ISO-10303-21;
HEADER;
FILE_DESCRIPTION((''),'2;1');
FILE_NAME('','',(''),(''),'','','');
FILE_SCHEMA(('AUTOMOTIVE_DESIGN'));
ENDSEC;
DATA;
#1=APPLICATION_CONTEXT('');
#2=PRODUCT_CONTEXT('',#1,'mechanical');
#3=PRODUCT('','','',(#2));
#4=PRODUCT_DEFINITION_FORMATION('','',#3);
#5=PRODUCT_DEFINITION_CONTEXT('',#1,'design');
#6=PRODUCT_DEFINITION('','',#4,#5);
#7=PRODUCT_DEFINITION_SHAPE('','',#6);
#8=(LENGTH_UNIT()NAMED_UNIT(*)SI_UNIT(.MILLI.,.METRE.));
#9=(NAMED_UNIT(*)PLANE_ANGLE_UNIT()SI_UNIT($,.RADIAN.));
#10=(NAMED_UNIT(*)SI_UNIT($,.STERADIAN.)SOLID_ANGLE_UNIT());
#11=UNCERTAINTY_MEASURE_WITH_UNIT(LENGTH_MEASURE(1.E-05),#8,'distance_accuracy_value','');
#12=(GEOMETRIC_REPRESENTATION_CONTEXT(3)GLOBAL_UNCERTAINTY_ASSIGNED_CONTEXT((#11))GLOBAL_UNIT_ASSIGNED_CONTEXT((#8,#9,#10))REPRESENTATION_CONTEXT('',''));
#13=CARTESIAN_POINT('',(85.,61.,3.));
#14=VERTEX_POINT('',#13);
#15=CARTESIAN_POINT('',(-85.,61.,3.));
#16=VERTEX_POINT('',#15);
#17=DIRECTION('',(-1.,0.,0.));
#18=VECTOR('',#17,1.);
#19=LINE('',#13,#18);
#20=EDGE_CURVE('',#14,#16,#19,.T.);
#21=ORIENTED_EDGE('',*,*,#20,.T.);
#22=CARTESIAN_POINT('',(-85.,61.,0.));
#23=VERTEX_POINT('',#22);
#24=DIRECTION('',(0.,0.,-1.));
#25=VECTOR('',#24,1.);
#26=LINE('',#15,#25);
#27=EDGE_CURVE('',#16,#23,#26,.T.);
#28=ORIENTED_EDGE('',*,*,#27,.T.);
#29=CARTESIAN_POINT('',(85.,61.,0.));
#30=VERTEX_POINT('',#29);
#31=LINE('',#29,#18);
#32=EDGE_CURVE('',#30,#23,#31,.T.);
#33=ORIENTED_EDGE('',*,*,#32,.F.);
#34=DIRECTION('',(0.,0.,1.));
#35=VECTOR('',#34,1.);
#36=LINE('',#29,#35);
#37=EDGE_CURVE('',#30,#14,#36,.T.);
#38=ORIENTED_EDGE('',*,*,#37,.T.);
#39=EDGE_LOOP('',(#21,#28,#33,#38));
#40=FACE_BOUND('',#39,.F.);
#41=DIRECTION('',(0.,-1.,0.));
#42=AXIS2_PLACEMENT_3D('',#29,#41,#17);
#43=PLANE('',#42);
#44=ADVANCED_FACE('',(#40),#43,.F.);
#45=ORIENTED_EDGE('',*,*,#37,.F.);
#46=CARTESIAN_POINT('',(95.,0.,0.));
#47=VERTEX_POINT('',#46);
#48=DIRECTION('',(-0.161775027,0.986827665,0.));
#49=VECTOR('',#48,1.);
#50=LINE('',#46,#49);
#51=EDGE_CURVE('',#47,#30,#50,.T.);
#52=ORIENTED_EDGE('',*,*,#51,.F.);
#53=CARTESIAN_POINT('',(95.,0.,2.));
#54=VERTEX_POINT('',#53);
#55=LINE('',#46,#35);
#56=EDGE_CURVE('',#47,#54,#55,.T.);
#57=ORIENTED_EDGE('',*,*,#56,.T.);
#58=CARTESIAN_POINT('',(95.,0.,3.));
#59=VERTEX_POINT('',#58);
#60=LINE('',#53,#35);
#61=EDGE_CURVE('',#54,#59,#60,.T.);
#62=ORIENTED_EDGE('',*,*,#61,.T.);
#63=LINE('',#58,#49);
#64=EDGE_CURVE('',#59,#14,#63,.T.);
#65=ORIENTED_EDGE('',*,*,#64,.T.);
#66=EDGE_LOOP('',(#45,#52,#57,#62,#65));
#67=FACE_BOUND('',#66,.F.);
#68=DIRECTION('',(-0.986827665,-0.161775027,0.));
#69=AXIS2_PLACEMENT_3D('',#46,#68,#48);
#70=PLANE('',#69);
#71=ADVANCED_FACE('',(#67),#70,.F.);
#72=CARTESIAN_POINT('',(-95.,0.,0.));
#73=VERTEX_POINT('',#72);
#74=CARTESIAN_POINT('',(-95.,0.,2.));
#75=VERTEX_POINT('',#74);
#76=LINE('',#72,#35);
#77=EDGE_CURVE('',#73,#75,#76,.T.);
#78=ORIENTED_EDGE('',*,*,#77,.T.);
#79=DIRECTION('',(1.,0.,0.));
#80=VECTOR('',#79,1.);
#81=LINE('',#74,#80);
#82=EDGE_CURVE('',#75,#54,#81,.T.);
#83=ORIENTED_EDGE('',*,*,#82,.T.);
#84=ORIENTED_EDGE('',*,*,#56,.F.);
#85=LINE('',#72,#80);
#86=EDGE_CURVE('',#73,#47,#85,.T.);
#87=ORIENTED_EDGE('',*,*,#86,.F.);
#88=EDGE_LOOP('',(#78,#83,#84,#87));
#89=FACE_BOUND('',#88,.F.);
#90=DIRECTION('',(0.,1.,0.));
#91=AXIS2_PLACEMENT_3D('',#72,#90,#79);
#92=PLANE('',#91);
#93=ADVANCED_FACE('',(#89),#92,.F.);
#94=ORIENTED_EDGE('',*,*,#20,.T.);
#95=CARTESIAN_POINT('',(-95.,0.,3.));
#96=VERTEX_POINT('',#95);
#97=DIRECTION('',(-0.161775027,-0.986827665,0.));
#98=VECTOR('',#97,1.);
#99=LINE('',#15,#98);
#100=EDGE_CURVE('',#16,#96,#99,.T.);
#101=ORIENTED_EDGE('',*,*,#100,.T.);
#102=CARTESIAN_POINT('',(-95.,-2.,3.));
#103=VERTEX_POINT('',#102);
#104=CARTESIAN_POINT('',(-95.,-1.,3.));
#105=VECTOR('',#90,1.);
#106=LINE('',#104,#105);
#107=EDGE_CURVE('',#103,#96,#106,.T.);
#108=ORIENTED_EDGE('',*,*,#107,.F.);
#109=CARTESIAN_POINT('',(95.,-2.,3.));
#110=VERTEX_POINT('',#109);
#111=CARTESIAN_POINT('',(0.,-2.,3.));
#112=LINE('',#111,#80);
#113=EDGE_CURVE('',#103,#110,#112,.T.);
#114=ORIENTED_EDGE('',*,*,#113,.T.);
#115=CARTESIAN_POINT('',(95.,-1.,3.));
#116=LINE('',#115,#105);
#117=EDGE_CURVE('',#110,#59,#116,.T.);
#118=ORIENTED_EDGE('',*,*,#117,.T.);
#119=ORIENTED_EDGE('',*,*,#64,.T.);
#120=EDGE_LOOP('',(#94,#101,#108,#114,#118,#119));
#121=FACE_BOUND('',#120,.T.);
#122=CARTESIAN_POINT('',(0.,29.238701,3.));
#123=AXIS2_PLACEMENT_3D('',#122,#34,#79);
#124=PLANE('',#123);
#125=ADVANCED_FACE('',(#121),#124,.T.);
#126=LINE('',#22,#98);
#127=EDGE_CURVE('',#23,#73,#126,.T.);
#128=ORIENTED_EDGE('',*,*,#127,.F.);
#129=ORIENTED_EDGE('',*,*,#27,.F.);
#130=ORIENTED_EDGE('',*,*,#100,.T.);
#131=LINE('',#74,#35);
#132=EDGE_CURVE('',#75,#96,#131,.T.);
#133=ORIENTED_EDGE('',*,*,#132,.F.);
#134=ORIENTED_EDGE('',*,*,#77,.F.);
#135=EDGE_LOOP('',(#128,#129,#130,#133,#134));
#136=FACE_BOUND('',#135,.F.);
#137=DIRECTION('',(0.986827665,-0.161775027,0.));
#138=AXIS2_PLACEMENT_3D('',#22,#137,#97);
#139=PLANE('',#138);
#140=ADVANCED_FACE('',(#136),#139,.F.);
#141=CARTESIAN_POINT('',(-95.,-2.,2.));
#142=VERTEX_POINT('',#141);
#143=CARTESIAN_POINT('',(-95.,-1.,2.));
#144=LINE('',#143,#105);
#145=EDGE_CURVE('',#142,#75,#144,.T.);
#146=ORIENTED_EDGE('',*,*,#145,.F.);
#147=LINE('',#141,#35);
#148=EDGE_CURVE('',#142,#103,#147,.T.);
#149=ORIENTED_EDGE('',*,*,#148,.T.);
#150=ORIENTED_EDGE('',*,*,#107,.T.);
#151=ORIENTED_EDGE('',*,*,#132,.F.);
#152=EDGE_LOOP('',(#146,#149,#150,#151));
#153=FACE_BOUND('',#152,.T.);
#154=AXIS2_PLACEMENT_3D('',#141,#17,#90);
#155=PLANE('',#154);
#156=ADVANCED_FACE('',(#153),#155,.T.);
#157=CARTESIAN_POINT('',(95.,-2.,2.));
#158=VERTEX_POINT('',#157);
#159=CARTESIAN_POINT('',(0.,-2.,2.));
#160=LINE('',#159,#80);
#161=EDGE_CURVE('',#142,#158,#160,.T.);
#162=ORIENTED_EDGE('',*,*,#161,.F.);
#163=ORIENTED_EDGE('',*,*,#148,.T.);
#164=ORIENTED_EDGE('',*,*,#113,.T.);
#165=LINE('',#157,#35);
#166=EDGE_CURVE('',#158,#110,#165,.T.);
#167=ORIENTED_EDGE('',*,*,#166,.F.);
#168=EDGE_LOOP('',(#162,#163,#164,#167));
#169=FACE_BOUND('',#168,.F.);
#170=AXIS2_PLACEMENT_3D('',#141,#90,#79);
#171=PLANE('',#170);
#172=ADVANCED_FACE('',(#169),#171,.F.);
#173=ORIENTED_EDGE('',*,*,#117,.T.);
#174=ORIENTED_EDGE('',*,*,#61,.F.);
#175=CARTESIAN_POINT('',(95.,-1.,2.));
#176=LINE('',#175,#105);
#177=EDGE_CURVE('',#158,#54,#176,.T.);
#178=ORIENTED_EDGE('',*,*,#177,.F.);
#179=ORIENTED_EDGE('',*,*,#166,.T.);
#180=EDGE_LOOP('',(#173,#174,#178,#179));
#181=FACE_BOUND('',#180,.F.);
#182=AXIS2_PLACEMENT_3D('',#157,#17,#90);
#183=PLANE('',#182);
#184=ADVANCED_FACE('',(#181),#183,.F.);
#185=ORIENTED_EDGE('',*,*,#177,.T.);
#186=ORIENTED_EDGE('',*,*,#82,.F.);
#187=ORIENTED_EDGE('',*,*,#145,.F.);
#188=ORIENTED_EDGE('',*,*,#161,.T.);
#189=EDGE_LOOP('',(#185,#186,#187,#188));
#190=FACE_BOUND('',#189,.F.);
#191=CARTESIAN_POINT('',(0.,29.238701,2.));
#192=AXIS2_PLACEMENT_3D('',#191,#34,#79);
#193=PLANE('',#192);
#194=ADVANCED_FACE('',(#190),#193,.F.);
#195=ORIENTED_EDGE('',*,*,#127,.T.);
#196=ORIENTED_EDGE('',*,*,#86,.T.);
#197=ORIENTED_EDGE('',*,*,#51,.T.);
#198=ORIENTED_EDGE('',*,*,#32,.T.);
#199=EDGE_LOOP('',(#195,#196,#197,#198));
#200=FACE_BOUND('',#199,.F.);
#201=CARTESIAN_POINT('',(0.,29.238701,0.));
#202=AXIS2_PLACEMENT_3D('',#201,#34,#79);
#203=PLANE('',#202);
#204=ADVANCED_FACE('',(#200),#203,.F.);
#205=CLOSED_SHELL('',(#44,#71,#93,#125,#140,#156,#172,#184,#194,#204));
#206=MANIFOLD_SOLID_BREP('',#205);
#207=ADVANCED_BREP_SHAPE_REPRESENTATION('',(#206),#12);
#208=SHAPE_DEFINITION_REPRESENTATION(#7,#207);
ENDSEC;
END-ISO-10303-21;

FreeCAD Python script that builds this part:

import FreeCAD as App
import Part
import Sketcher
from FreeCAD import Vector

doc = App.newDocument("Part")
params = doc.addObject("Spreadsheet::Sheet", "Params")
for row, (alias, value) in enumerate([
    ("sketch1_width", "190 mm"),
    ("sketch1_width2", "170 mm"),
    ("pad1_length", "1 mm"),
    ("sketch2_width", "190 mm"),
    ("sketch2_width2", "170 mm"),
    ("pad2_length", "2 mm"),
    ("sketch3_width", "190 mm"),
    ("sketch3_height", "2 mm"),
    ("pad3_length", "1 mm"),
], start=1):
    params.set(f"A{row}", alias)
    params.set(f"B{row}", "=" + value)
    params.setAlias(f"B{row}", alias)

body = doc.addObject("PartDesign::Body", "Body")

# Sketch on XY plane
sketch1 = doc.addObject("Sketcher::SketchObject", "Sketch")
body.addObject(sketch1)
sketch1.AttachmentSupport = (doc.XY_Plane, [""])
sketch1.MapMode = "FlatFace"
sketch1.addGeometry([
    Part.LineSegment(Vector(-95, 0, 0), Vector(95, 0, 0)),
    Part.LineSegment(Vector(95, 0, 0), Vector(85, 61, 0)),
    Part.LineSegment(Vector(85, 61, 0), Vector(-85, 61, 0)),
    Part.LineSegment(Vector(-85, 61, 0), Vector(-95, 0, 0)),
], False)
sketch1.addConstraint([
    Sketcher.Constraint("Coincident", 0, 2, 1, 1),
    Sketcher.Constraint("Coincident", 1, 2, 2, 1),
    Sketcher.Constraint("Coincident", 2, 2, 3, 1),
    Sketcher.Constraint("Coincident", 3, 2, 0, 1),
    Sketcher.Constraint("Horizontal", 0),
    Sketcher.Constraint("Horizontal", 2),
    Sketcher.Constraint("Symmetric", 0, 2, 3, 2, -1, 1),
    Sketcher.Constraint("Equal", 1, 3),
    Sketcher.Constraint("DistanceX", 0, 1, 0, 2, 190.0),
    Sketcher.Constraint("DistanceX", 2, 2, 2, 1, 170.0),
    Sketcher.Constraint("DistanceY", -1, 1, 1, 2, 61.0),
])
sketch1.setExpression("Constraints[8]", "Params.sketch1_width")
sketch1.setExpression("Constraints[9]", "Params.sketch1_width2")
pad1 = doc.addObject("PartDesign::Pad", "Pad")
body.addObject(pad1)
pad1.Profile = sketch1
pad1.setExpression("Length", "Params.pad1_length")
body2 = doc.addObject("PartDesign::Body", "Body001")
doc.recompute()

body.Placement = App.Placement(Vector(0, 0, 2), App.Rotation(Vector(0, 0, 1), 0))
boolean = doc.addObject("PartDesign::Boolean", "Boolean")
body2.addObject(boolean)
boolean.Type = "Fuse"
boolean.addObjects([body])
body3 = doc.addObject("PartDesign::Body", "Body002")

# Sketch on XY plane
sketch2 = doc.addObject("Sketcher::SketchObject", "Sketch001")
body3.addObject(sketch2)
sketch2.AttachmentSupport = (doc.getObject("XY_Plane002"), [""])
sketch2.MapMode = "FlatFace"
sketch2.addGeometry([
    Part.LineSegment(Vector(-95, 0, 0), Vector(95, 0, 0)),
    Part.LineSegment(Vector(95, 0, 0), Vector(85, 61, 0)),
    Part.LineSegment(Vector(85, 61, 0), Vector(-85, 61, 0)),
    Part.LineSegment(Vector(-85, 61, 0), Vector(-95, 0, 0)),
], False)
sketch2.addConstraint([
    Sketcher.Constraint("Coincident", 0, 2, 1, 1),
    Sketcher.Constraint("Coincident", 1, 2, 2, 1),
    Sketcher.Constraint("Coincident", 2, 2, 3, 1),
    Sketcher.Constraint("Coincident", 3, 2, 0, 1),
    Sketcher.Constraint("Horizontal", 0),
    Sketcher.Constraint("Horizontal", 2),
    Sketcher.Constraint("Symmetric", 0, 2, 3, 2, -1, 1),
    Sketcher.Constraint("Equal", 1, 3),
    Sketcher.Constraint("DistanceX", 0, 1, 0, 2, 190.0),
    Sketcher.Constraint("DistanceX", 2, 2, 2, 1, 170.0),
    Sketcher.Constraint("DistanceY", -1, 1, 1, 2, 61.0),
])
sketch2.setExpression("Constraints[8]", "Params.sketch2_width")
sketch2.setExpression("Constraints[9]", "Params.sketch2_width2")
pad2 = doc.addObject("PartDesign::Pad", "Pad001")
body3.addObject(pad2)
pad2.Profile = sketch2
pad2.setExpression("Length", "Params.pad2_length")
body4 = doc.addObject("PartDesign::Body", "Body003")

# Sketch on XY plane
sketch3 = doc.addObject("Sketcher::SketchObject", "Sketch002")
body4.addObject(sketch3)
sketch3.AttachmentSupport = (doc.getObject("XY_Plane003"), [""])
sketch3.MapMode = "FlatFace"
sketch3.AttachmentOffset = App.Placement(Vector(0, 0, 2), App.Rotation())
sketch3.addGeometry([
    Part.LineSegment(Vector(-95, 0, 0), Vector(-95, -2, 0)),
    Part.LineSegment(Vector(-95, -2, 0), Vector(95, -2, 0)),
    Part.LineSegment(Vector(95, -2, 0), Vector(95, 0, 0)),
    Part.LineSegment(Vector(95, 0, 0), Vector(-95, 0, 0)),
], False)
sketch3.addConstraint([
    Sketcher.Constraint("Coincident", 0, 2, 1, 1),
    Sketcher.Constraint("Coincident", 1, 2, 2, 1),
    Sketcher.Constraint("Coincident", 2, 2, 3, 1),
    Sketcher.Constraint("Coincident", 3, 2, 0, 1),
    Sketcher.Constraint("Vertical", 0),
    Sketcher.Constraint("Horizontal", 1),
    Sketcher.Constraint("Vertical", 2),
    Sketcher.Constraint("Horizontal", 3),
    Sketcher.Constraint("Symmetric", 2, 2, 3, 2, -1, 1),
    Sketcher.Constraint("DistanceX", 1, 1, 1, 2, 190.0),
    Sketcher.Constraint("DistanceY", 0, 2, 0, 1, 2.0),
])
sketch3.setExpression("Constraints[9]", "Params.sketch3_width")
sketch3.setExpression("Constraints[10]", "Params.sketch3_height")
pad3 = doc.addObject("PartDesign::Pad", "Pad002")
body4.addObject(pad3)
pad3.Profile = sketch3
pad3.setExpression("Length", "Params.pad3_length")
doc.recompute()

boolean2 = doc.addObject("PartDesign::Boolean", "Boolean001")
body4.addObject(boolean2)
boolean2.Type = "Fuse"
boolean2.addObjects([body2])
doc.recompute()

boolean3 = doc.addObject("PartDesign::Boolean", "Boolean002")
body4.addObject(boolean3)
boolean3.Type = "Fuse"
boolean3.addObjects([body3])

doc.recompute()
